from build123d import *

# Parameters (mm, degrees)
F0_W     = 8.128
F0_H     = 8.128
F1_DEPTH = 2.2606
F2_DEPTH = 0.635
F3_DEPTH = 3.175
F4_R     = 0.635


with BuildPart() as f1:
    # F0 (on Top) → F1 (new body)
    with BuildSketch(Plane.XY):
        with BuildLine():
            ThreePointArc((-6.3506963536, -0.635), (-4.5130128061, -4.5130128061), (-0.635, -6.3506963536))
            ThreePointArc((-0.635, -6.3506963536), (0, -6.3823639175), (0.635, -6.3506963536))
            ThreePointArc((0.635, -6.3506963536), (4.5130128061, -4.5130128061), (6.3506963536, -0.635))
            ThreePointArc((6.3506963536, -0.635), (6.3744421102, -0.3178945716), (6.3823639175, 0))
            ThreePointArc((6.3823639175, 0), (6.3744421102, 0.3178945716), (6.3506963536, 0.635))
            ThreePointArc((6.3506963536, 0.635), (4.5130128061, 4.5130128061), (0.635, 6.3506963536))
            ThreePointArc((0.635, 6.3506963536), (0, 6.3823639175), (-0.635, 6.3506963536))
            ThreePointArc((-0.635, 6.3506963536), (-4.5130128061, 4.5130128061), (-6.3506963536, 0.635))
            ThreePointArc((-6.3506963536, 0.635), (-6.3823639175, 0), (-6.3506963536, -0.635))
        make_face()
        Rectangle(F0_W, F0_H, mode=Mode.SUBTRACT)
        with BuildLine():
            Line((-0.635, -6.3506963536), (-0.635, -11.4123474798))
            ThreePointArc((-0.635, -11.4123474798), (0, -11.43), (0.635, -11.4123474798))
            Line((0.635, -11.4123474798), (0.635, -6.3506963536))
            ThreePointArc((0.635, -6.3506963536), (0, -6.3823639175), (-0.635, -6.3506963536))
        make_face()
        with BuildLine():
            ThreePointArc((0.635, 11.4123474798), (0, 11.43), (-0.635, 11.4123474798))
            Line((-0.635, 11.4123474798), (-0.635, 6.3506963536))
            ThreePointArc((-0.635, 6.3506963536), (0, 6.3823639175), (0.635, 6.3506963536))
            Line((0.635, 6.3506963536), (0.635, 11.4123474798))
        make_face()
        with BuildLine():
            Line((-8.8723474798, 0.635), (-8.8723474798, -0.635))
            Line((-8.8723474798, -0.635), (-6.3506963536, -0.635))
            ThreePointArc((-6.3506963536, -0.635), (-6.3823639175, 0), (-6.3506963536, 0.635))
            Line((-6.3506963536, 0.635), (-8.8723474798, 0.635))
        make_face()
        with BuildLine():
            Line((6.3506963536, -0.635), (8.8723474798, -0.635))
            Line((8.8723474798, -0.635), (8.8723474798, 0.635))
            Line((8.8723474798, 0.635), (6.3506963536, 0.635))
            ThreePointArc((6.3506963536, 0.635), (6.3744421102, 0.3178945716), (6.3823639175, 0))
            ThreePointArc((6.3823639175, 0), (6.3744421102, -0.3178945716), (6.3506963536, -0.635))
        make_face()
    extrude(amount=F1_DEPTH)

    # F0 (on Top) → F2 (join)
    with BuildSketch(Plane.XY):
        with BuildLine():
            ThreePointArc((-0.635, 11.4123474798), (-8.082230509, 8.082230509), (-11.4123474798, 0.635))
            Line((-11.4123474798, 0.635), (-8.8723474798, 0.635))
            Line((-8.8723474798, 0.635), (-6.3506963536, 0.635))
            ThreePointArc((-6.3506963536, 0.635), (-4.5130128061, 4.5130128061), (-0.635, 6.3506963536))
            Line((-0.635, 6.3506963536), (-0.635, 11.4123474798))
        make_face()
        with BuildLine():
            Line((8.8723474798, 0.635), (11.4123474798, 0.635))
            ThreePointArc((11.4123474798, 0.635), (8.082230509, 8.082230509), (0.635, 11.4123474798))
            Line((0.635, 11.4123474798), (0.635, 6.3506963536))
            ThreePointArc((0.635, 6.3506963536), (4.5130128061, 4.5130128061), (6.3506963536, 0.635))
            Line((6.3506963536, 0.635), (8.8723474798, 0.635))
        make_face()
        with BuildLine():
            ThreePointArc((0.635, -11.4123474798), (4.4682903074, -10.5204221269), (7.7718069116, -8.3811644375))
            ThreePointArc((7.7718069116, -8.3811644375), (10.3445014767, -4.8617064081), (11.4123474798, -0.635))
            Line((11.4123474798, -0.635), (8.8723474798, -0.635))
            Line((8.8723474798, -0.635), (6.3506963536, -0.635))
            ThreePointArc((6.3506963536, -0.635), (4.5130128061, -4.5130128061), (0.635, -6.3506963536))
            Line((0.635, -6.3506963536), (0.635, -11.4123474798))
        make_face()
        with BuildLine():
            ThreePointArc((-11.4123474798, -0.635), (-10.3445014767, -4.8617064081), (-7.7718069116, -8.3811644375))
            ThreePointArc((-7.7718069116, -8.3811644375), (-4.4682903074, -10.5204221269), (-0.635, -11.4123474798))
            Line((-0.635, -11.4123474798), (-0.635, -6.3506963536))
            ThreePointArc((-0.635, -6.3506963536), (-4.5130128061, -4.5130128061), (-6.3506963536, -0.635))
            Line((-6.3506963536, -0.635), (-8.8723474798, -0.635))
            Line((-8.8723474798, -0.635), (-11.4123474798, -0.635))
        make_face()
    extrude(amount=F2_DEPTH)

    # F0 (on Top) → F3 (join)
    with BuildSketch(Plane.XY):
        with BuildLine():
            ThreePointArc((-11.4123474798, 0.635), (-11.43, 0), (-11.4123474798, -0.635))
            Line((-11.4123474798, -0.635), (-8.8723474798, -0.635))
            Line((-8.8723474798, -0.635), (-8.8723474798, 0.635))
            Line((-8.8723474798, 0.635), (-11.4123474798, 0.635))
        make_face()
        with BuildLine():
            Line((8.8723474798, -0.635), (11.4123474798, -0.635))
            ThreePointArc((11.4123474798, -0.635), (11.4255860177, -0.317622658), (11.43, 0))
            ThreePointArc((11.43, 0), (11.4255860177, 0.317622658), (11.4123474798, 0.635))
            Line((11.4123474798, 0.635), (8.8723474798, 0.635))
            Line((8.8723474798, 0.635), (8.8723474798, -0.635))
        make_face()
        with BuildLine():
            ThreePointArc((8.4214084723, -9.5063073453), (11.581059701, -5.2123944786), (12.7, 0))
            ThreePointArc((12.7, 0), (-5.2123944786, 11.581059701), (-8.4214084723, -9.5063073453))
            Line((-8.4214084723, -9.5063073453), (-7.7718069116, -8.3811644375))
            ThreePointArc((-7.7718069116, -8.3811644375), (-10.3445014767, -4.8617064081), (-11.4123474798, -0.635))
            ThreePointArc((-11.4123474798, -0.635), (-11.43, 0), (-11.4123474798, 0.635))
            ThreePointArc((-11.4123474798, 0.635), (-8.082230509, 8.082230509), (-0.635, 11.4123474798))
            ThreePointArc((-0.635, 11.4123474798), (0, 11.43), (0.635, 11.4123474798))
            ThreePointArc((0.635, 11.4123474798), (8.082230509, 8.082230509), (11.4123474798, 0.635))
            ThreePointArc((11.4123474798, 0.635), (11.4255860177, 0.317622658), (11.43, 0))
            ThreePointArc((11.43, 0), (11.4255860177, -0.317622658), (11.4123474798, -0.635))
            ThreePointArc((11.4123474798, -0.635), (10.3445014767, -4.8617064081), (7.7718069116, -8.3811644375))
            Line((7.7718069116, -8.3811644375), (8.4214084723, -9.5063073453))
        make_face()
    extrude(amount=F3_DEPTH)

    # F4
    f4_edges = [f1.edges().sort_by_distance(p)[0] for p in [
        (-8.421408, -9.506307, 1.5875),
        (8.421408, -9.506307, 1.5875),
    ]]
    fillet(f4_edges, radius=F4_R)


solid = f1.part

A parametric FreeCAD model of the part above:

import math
import FreeCAD as App
import Part
import Sketcher

V = App.Vector
Q = App.Units.Quantity


def edges_at(feature, points):
    """Names of the edges that pass closest to the given points."""
    edges = feature.Shape.Edges
    near = lambda p: min(range(len(edges)), key=lambda i: edges[i].distToShape(Part.Vertex(*p))[0])
    return sorted({f"Edge{near(p) + 1}" for p in points})

doc = App.newDocument("Part")
params = doc.addObject("Spreadsheet::Sheet", "Params")
for row, (alias, value) in enumerate([
    ("sketch1_radius", "0.45 in"),
    ("sketch1_width", "0.32 in"),
    ("sketch1_height", "0.05 in"),
    ("pad1_length", "0.089 in"),
    ("sketch2_radius", "0.45 in"),
    ("pad2_length", "0.025 in"),
    ("sketch3_radius", "0.5 in"),
    ("sketch3_radius2", "0.45 in"),
    ("sketch3_width", "0.1 in"),
    ("sketch3_height", "0.05 in"),
    ("pad3_length", "0.125 in"),
    ("fillet_radius", "0.025 in"),
], start=1):
    params.set(f"A{row}", alias)
    params.set(f"B{row}", "=" + value)
    params.setAlias(f"B{row}", alias)

body = doc.addObject("PartDesign::Body", "Body")

sketch1 = body.newObject("Sketcher::SketchObject", "Sketch")
sketch1.AttachmentSupport = (doc.getObject("XY_Plane"), [""])
sketch1.MapMode = "FlatFace"
sketch1.addGeometry(Part.ArcOfCircle(Part.Circle(V(0, 0, 0), V(0, 0, 1), 6.4), math.radians(-174), math.radians(-96)), False)
sketch1.addGeometry(Part.LineSegment(V(-0.6, -6.4, 0), V(-0.6, -11.4, 0)), False)
sketch1.addGeometry(Part.ArcOfCircle(Part.Circle(V(0, 0, 0), V(0, 0, 1), 11.4), math.radians(-93.18), math.radians(-86.82)), False)
sketch1.addGeometry(Part.LineSegment(V(0.6, -11.4, 0), V(0.6, -6.4, 0)), False)
sketch1.addGeometry(Part.ArcOfCircle(Part.Circle(V(0, 0, 0), V(0, 0, 1), 6.4), math.radians(-84), math.radians(-6)), False)
sketch1.addGeometry(Part.LineSegment(V(6.4, -0.6, 0), V(8.9, -0.6, 0)), False)
sketch1.addGeometry(Part.LineSegment(V(8.9, -0.6, 0), V(8.9, 0.6, 0)), False)
sketch1.addGeometry(Part.LineSegment(V(8.9, 0.6, 0), V(6.4, 0.6, 0)), False)
sketch1.addGeometry(Part.ArcOfCircle(Part.Circle(V(0, 0, 0), V(0, 0, 1), 6.4), math.radians(6), math.radians(84)), False)
sketch1.addGeometry(Part.LineSegment(V(0.6, 6.4, 0), V(0.6, 11.4, 0)), False)
sketch1.addGeometry(Part.ArcOfCircle(Part.Circle(V(0, 0, 0), V(0, 0, 1), 11.4), math.radians(86.82), math.radians(93.18)), False)
sketch1.addGeometry(Part.LineSegment(V(-0.6, 11.4, 0), V(-0.6, 6.4, 0)), False)
sketch1.addGeometry(Part.ArcOfCircle(Part.Circle(V(0, 0, 0), V(0, 0, 1), 6.4), math.radians(96), math.radians(174)), False)
sketch1.addGeometry(Part.LineSegment(V(-6.4, 0.6, 0), V(-8.9, 0.6, 0)), False)
sketch1.addGeometry(Part.LineSegment(V(-8.9, 0.6, 0), V(-8.9, -0.6, 0)), False)
sketch1.addGeometry(Part.LineSegment(V(-8.9, -0.6, 0), V(-6.4, -0.6, 0)), False)
sketch1.addGeometry(Part.LineSegment(V(4.1, -4.1, 0), V(-4.1, -4.1, 0)), False)
sketch1.addGeometry(Part.LineSegment(V(-4.1, -4.1, 0), V(-4.1, 4.1, 0)), False)
sketch1.addGeometry(Part.LineSegment(V(-4.1, 4.1, 0), V(4.1, 4.1, 0)), False)
sketch1.addGeometry(Part.LineSegment(V(4.1, 4.1, 0), V(4.1, -4.1, 0)), False)
sketch1.addConstraint(Sketcher.Constraint("Coincident", 0, 2, 1, 1))
sketch1.addConstraint(Sketcher.Constraint("Coincident", 1, 2, 2, 1))
sketch1.addConstraint(Sketcher.Constraint("Coincident", 2, 2, 3, 1))
sketch1.addConstraint(Sketcher.Constraint("Coincident", 3, 2, 4, 1))
sketch1.addConstraint(Sketcher.Constraint("Coincident", 4, 2, 5, 1))
sketch1.addConstraint(Sketcher.Constraint("Coincident", 5, 2, 6, 1))
sketch1.addConstraint(Sketcher.Constraint("Coincident", 6, 2, 7, 1))
sketch1.addConstraint(Sketcher.Constraint("Coincident", 7, 2, 8, 1))
sketch1.addConstraint(Sketcher.Constraint("Coincident", 8, 2, 9, 1))
sketch1.addConstraint(Sketcher.Constraint("Coincident", 9, 2, 10, 1))
sketch1.addConstraint(Sketcher.Constraint("Coincident", 10, 2, 11, 1))
sketch1.addConstraint(Sketcher.Constraint("Coincident", 11, 2, 12, 1))
sketch1.addConstraint(Sketcher.Constraint("Coincident", 12, 2, 13, 1))
sketch1.addConstraint(Sketcher.Constraint("Coincident", 13, 2, 14, 1))
sketch1.addConstraint(Sketcher.Constraint("Coincident", 14, 2, 15, 1))
sketch1.addConstraint(Sketcher.Constraint("Coincident", 15, 2, 0, 1))
sketch1.addConstraint(Sketcher.Constraint("Coincident", 16, 2, 17, 1))
sketch1.addConstraint(Sketcher.Constraint("Coincident", 17, 2, 18, 1))
sketch1.addConstraint(Sketcher.Constraint("Coincident", 18, 2, 19, 1))
sketch1.addConstraint(Sketcher.Constraint("Coincident", 19, 2, 16, 1))
sketch1.addConstraint(Sketcher.Constraint("Vertical", 1))
sketch1.addConstraint(Sketcher.Constraint("Vertical", 3))
sketch1.addConstraint(Sketcher.Constraint("Horizontal", 5))
sketch1.addConstraint(Sketcher.Constraint("Vertical", 6))
sketch1.addConstraint(Sketcher.Constraint("Horizontal", 7))
sketch1.addConstraint(Sketcher.Constraint("Vertical", 9))
sketch1.addConstraint(Sketcher.Constraint("Vertical", 11))
sketch1.addConstraint(Sketcher.Constraint("Horizontal", 13))
sketch1.addConstraint(Sketcher.Constraint("Vertical", 14))
sketch1.addConstraint(Sketcher.Constraint("Horizontal", 15))
sketch1.addConstraint(Sketcher.Constraint("Horizontal", 16))
sketch1.addConstraint(Sketcher.Constraint("Vertical", 17))
sketch1.addConstraint(Sketcher.Constraint("Horizontal", 18))
sketch1.addConstraint(Sketcher.Constraint("Vertical", 19))
sketch1.addConstraint(Sketcher.Constraint("Coincident", 0, 3, -1, 1))
sketch1.addConstraint(Sketcher.Constraint("Coincident", 2, 3, -1, 1))
sketch1.addConstraint(Sketcher.Constraint("Coincident", 4, 3, -1, 1))
sketch1.addConstraint(Sketcher.Constraint("Coincident", 8, 3, -1, 1))
sketch1.addConstraint(Sketcher.Constraint("Coincident", 10, 3, -1, 1))
sketch1.addConstraint(Sketcher.Constraint("Coincident", 12, 3, -1, 1))
sketch1.addConstraint(Sketcher.Constraint("Equal", 0, 4))
sketch1.addConstraint(Sketcher.Constraint("Equal", 4, 8))
sketch1.addConstraint(Sketcher.Constraint("Equal", 2, 10))
sketch1.addConstraint(Sketcher.Constraint("Equal", 8, 12))
sketch1.addConstraint(Sketcher.Constraint("Symmetric", 5, 2, 13, 2, -1, 1))
sketch1.addConstraint(Sketcher.Constraint("Symmetric", 16, 2, 18, 2, -1, 1))
sketch1.addConstraint(Sketcher.Constraint("Horizontal", 1, 2, 2, 2))
sketch1.addConstraint(Sketcher.Constraint("Horizontal", 9, 2, 10, 2))
sketch1.addConstraint(Sketcher.Constraint("Horizontal", 7, 2, 12, 2))
sketch1.addConstraint(Sketcher.Constraint("Horizontal", 5, 2, 14, 2))
sketch1.addConstraint(Sketcher.Constraint("Vertical", 3, 2, 8, 2))
sketch1.addConstraint(Sketcher.Constraint("Equal", 18, 17))
sketch1.addConstraint(Sketcher.Constraint("Radius", 2, Q("0.45 in")))
sketch1.addConstraint(Sketcher.Constraint("DistanceX", 16, 2, 16, 1, Q("0.32 in")))
sketch1.addConstraint(Sketcher.Constraint("DistanceY", 6, 1, 6, 2, Q("0.05 in")))
sketch1.addConstraint(Sketcher.Constraint("DistanceX", 1, 2, 2, 2, Q("0.05 in")))
sketch1.addConstraint(Sketcher.Constraint("Radius", 0, Q("6.382364 mm")))
sketch1.addConstraint(Sketcher.Constraint("DistanceX", 5, 1, 5, 2, Q("2.521651 mm")))
sketch1.setExpression("Constraints[52]", "Params.sketch1_radius")
sketch1.setExpression("Constraints[53]", "Params.sketch1_width")
sketch1.setExpression("Constraints[54]", "Params.sketch1_height")
pad1 = body.newObject("PartDesign::Pad", "Pad")
pad1.Profile = sketch1
pad1.setExpression("Length", "Params.pad1_length")

sketch2 = body.newObject("Sketcher::SketchObject", "Sketch001")
sketch2.AttachmentSupport = (doc.getObject("XY_Plane"), [""])
sketch2.MapMode = "FlatFace"
sketch2.addGeometry(Part.ArcOfCircle(Part.Circle(V(0, 0, 0), V(0, 0, 1), 11), math.radians(93), math.radians(177)), False)
sketch2.addGeometry(Part.LineSegment(V(-11, 1, 0), V(-6, 1, 0)), False)
sketch2.addGeometry(Part.ArcOfCircle(Part.Circle(V(0, 0, 0), V(0, 0, 1), 6), math.radians(96), math.radians(174)), False)
sketch2.addGeometry(Part.LineSegment(V(-1, 6, 0), V(-1, 11, 0)), False)
sketch2.addGeometry(Part.ArcOfCircle(Part.Circle(V(0, 0, 0), V(0, 0, 1), 11), math.radians(3), math.radians(87)), False)
sketch2.addGeometry(Part.LineSegment(V(1, 11, 0), V(1, 6, 0)), False)
sketch2.addGeometry(Part.ArcOfCircle(Part.Circle(V(0, 0, 0), V(0, 0, 1), 6), math.radians(6), math.radians(84)), False)
sketch2.addGeometry(Part.LineSegment(V(6, 1, 0), V(11, 1, 0)), False)
sketch2.addGeometry(Part.ArcOfCircle(Part.Circle(V(0, 0, 0), V(0, 0, 1), 11), math.radians(-87), math.radians(-47)), False)
sketch2.addGeometry(Part.ArcOfCircle(Part.Circle(V(0, 0, 0), V(0, 0, 1), 11), math.radians(-47), math.radians(-3)), False)
sketch2.addGeometry(Part.LineSegment(V(11, -1, 0), V(6, -1, 0)), False)
sketch2.addGeometry(Part.ArcOfCircle(Part.Circle(V(0, 0, 0), V(0, 0, 1), 6), math.radians(-84), math.radians(-6)), False)
sketch2.addGeometry(Part.LineSegment(V(1, -6, 0), V(1, -11, 0)), False)
sketch2.addGeometry(Part.ArcOfCircle(Part.Circle(V(0, 0, 0), V(0, 0, 1), 11), math.radians(-177), math.radians(-133)), False)
sketch2.addGeometry(Part.ArcOfCircle(Part.Circle(V(0, 0, 0), V(0, 0, 1), 11), math.radians(-133), math.radians(-93)), False)
sketch2.addGeometry(Part.LineSegment(V(-1, -11, 0), V(-1, -6, 0)), False)
sketch2.addGeometry(Part.ArcOfCircle(Part.Circle(V(0, 0, 0), V(0, 0, 1), 6), math.radians(-174), math.radians(-96)), False)
sketch2.addGeometry(Part.LineSegment(V(-6, -1, 0), V(-11, -1, 0)), False)
sketch2.addConstraint(Sketcher.Constraint("Coincident", 0, 2, 1, 1))
sketch2.addConstraint(Sketcher.Constraint("Coincident", 1, 2, 2, 2))
sketch2.addConstraint(Sketcher.Constraint("Coincident", 2, 1, 3, 1))
sketch2.addConstraint(Sketcher.Constraint("Coincident", 3, 2, 0, 1))
sketch2.addConstraint(Sketcher.Constraint("Coincident", 4, 2, 5, 1))
sketch2.addConstraint(Sketcher.Constraint("Coincident", 5, 2, 6, 2))
sketch2.addConstraint(Sketcher.Constraint("Coincident", 6, 1, 7, 1))
sketch2.addConstraint(Sketcher.Constraint("Coincident", 7, 2, 4, 1))
sketch2.addConstraint(Sketcher.Constraint("Tangent", 8, 2, 9, 1))
sketch2.addConstraint(Sketcher.Constraint("Coincident", 9, 2, 10, 1))
sketch2.addConstraint(Sketcher.Constraint("Coincident", 10, 2, 11, 2))
sketch2.addConstraint(Sketcher.Constraint("Coincident", 11, 1, 12, 1))
sketch2.addConstraint(Sketcher.Constraint("Coincident", 12, 2, 8, 1))
sketch2.addConstraint(Sketcher.Constraint("Tangent", 13, 2, 14, 1))
sketch2.addConstraint(Sketcher.Constraint("Coincident", 14, 2, 15, 1))
sketch2.addConstraint(Sketcher.Constraint("Coincident", 15, 2, 16, 2))
sketch2.addConstraint(Sketcher.Constraint("Coincident", 16, 1, 17, 1))
sketch2.addConstraint(Sketcher.Constraint("Coincident", 17, 2, 13, 1))
sketch2.addConstraint(Sketcher.Constraint("Horizontal", 1))
sketch2.addConstraint(Sketcher.Constraint("Vertical", 3))
sketch2.addConstraint(Sketcher.Constraint("Vertical", 5))
sketch2.addConstraint(Sketcher.Constraint("Horizontal", 7))
sketch2.addConstraint(Sketcher.Constraint("Horizontal", 10))
sketch2.addConstraint(Sketcher.Constraint("Vertical", 12))
sketch2.addConstraint(Sketcher.Constraint("Vertical", 15))
sketch2.addConstraint(Sketcher.Constraint("Horizontal", 17))
sketch2.addConstraint(Sketcher.Constraint("Coincident", 0, 3, -1, 1))
sketch2.addConstraint(Sketcher.Constraint("Coincident", 2, 3, -1, 1))
sketch2.addConstraint(Sketcher.Constraint("Coincident", 4, 3, -1, 1))
sketch2.addConstraint(Sketcher.Constraint("Coincident", 6, 3, -1, 1))
sketch2.addConstraint(Sketcher.Constraint("Coincident", 8, 3, -1, 1))
sketch2.addConstraint(Sketcher.Constraint("Coincident", 11, 3, -1, 1))
sketch2.addConstraint(Sketcher.Constraint("Coincident", 13, 3, -1, 1))
sketch2.addConstraint(Sketcher.Constraint("Coincident", 16, 3, -1, 1))
sketch2.addConstraint(Sketcher.Constraint("Equal", 0, 4))
sketch2.addConstraint(Sketcher.Constraint("Equal", 2, 6))
sketch2.addConstraint(Sketcher.Constraint("Equal", 4, 8))
sketch2.addConstraint(Sketcher.Constraint("Equal", 8, 9))
sketch2.addConstraint(Sketcher.Constraint("Equal", 6, 11))
sketch2.addConstraint(Sketcher.Constraint("Equal", 9, 13))
sketch2.addConstraint(Sketcher.Constraint("Equal", 13, 14))
sketch2.addConstraint(Sketcher.Constraint("Equal", 11, 16))
sketch2.addConstraint(Sketcher.Constraint("Horizontal", 3, 2, 4, 2))
sketch2.addConstraint(Sketcher.Constraint("Horizontal", 1, 2, 6, 1))
sketch2.addConstraint(Sketcher.Constraint("Horizontal", 8, 2, 13, 2))
sketch2.addConstraint(Sketcher.Constraint("Horizontal", 12, 2, 14, 2))
sketch2.addConstraint(Sketcher.Constraint("Horizontal", 10, 2, 16, 1))
sketch2.addConstraint(Sketcher.Constraint("Vertical", 7, 2, 9, 2))
sketch2.addConstraint(Sketcher.Constraint("Vertical", 5, 2, 11, 1))
sketch2.addConstraint(Sketcher.Constraint("Equal", 17, 3))
sketch2.addConstraint(Sketcher.Constraint("Radius", 0, Q("0.45 in")))
sketch2.addConstraint(Sketcher.Constraint("DistanceX", 3, 2, 4, 2, Q("0.05 in")))
sketch2.addConstraint(Sketcher.Constraint("Radius", 2, Q("6.382364 mm")))
sketch2.addConstraint(Sketcher.Constraint("DistanceX", 6, 1, 8, 2, Q("1.421111 mm")))
sketch2.setExpression("Constraints[50]", "Params.sketch2_radius")
pad2 = body.newObject("PartDesign::Pad", "Pad001")
pad2.Profile = sketch2
pad2.setExpression("Length", "Params.pad2_length")

sketch3 = body.newObject("Sketcher::SketchObject", "Sketch002")
sketch3.AttachmentSupport = (doc.getObject("XY_Plane"), [""])
sketch3.MapMode = "FlatFace"
sketch3.addGeometry(Part.LineSegment(V(-11.4, -0.6, 0), V(-8.9, -0.6, 0)), False)
sketch3.addGeometry(Part.LineSegment(V(-8.9, -0.6, 0), V(-8.9, 0.6, 0)), False)
sketch3.addGeometry(Part.LineSegment(V(-8.9, 0.6, 0), V(-11.4, 0.6, 0)), False)
sketch3.addGeometry(Part.ArcOfCircle(Part.Circle(V(0, 0, 0), V(0, 0, 1), 11.4), math.radians(93), math.radians(177)), False)
sketch3.addGeometry(Part.ArcOfCircle(Part.Circle(V(0, 0, 0), V(0, 0, 1), 11.4), math.radians(86.82), math.radians(93.18)), False)
sketch3.addGeometry(Part.ArcOfCircle(Part.Circle(V(0, 0, 0), V(0, 0, 1), 11.4), math.radians(3), math.radians(87)), False)
sketch3.addGeometry(Part.LineSegment(V(11.4, 0.6, 0), V(8.9, 0.6, 0)), False)
sketch3.addGeometry(Part.LineSegment(V(8.9, 0.6, 0), V(8.9, -0.6, 0)), False)
sketch3.addGeometry(Part.LineSegment(V(8.9, -0.6, 0), V(11.4, -0.6, 0)), False)
sketch3.addGeometry(Part.ArcOfCircle(Part.Circle(V(0, 0, 0), V(0, 0, 1), 11.4), math.radians(-47), math.radians(-3)), False)
sketch3.addGeometry(Part.LineSegment(V(7.8, -8.4, 0), V(8.4, -9.5, 0)), False)
sketch3.addGeometry(Part.ArcOfCircle(Part.Circle(V(0, 0, 0), V(0, 0, 1), 12.7), math.radians(-48), math.radians(0)), False)
sketch3.addGeometry(Part.ArcOfCircle(Part.Circle(V(0, 0, 0), V(0, 0, 1), 12.7), math.radians(0), math.radians(228)), False)
sketch3.addGeometry(Part.LineSegment(V(-8.4, -9.5, 0), V(-7.8, -8.4, 0)), False)
sketch3.addGeometry(Part.ArcOfCircle(Part.Circle(V(0, 0, 0), V(0, 0, 1), 11.4), math.radians(-177), math.radians(-133)), False)
sketch3.addConstraint(Sketcher.Constraint("Coincident", 0, 2, 1, 1))
sketch3.addConstraint(Sketcher.Constraint("Coincident", 1, 2, 2, 1))
sketch3.addConstraint(Sketcher.Constraint("Coincident", 2, 2, 3, 2))
sketch3.addConstraint(Sketcher.Constraint("Tangent", 3, 1, 4, 2))
sketch3.addConstraint(Sketcher.Constraint("Tangent", 4, 1, 5, 2))
sketch3.addConstraint(Sketcher.Constraint("Coincident", 5, 1, 6, 1))
sketch3.addConstraint(Sketcher.Constraint("Coincident", 6, 2, 7, 1))
sketch3.addConstraint(Sketcher.Constraint("Coincident", 7, 2, 8, 1))
sketch3.addConstraint(Sketcher.Constraint("Coincident", 8, 2, 9, 2))
sketch3.addConstraint(Sketcher.Constraint("Coincident", 9, 1, 10, 1))
sketch3.addConstraint(Sketcher.Constraint("Coincident", 10, 2, 11, 1))
sketch3.addConstraint(Sketcher.Constraint("Tangent", 11, 2, 12, 1))
sketch3.addConstraint(Sketcher.Constraint("Coincident", 12, 2, 13, 1))
sketch3.addConstraint(Sketcher.Constraint("Coincident", 13, 2, 14, 2))
sketch3.addConstraint(Sketcher.Constraint("Coincident", 14, 1, 0, 1))
sketch3.addConstraint(Sketcher.Constraint("Horizontal", 0))
sketch3.addConstraint(Sketcher.Constraint("Vertical", 1))
sketch3.addConstraint(Sketcher.Constraint("Horizontal", 2))
sketch3.addConstraint(Sketcher.Constraint("Horizontal", 6))
sketch3.addConstraint(Sketcher.Constraint("Vertical", 7))
sketch3.addConstraint(Sketcher.Constraint("Horizontal", 8))
sketch3.addConstraint(Sketcher.Constraint("Coincident", 3, 3, -1, 1))
sketch3.addConstraint(Sketcher.Constraint("Coincident", 5, 3, -1, 1))
sketch3.addConstraint(Sketcher.Constraint("Coincident", 9, 3, -1, 1))
sketch3.addConstraint(Sketcher.Constraint("Coincident", 11, 3, -1, 1))
sketch3.addConstraint(Sketcher.Constraint("Coincident", 14, 3, -1, 1))
sketch3.addConstraint(Sketcher.Constraint("Equal", 5, 9))
sketch3.addConstraint(Sketcher.Constraint("Equal", 11, 12))
sketch3.addConstraint(Sketcher.Constraint("Equal", 9, 14))
sketch3.addConstraint(Sketcher.Constraint("Symmetric", 0, 2, 6, 2, -1, 1))
sketch3.addConstraint(Sketcher.Constraint("PointOnObject", 11, 2, -1))
sketch3.addConstraint(Sketcher.Constraint("Horizontal", 3, 1, 4, 1))
sketch3.addConstraint(Sketcher.Constraint("Horizontal", 2, 2, 5, 1))
sketch3.addConstraint(Sketcher.Constraint("Horizontal", 0, 2, 7, 2))
sketch3.addConstraint(Sketcher.Constraint("Horizontal", 10, 2, 12, 2))
sketch3.addConstraint(Sketcher.Constraint("Horizontal", 9, 1, 13, 2))
sketch3.addConstraint(Sketcher.Constraint("Radius", 11, Q("0.5 in")))
sketch3.addConstraint(Sketcher.Constraint("Radius", 3, Q("0.45 in")))
sketch3.addConstraint(Sketcher.Constraint("DistanceX", 0, 1, 0, 2, Q("0.1 in")))
sketch3.addConstraint(Sketcher.Constraint("Angle", 10, Q("-60 deg")))
sketch3.addConstraint(Sketcher.Constraint("DistanceY", 1, 1, 1, 2, Q("0.05 in")))
sketch3.addConstraint(Sketcher.Constraint("DistanceX", 3, 1, 4, 1, Q("0.05 in")))
sketch3.addConstraint(Sketcher.Constraint("DistanceX", -1, 1, 10, 2, Q("8.421408 mm")))
sketch3.setExpression("Constraints[36]", "Params.sketch3_radius")
sketch3.setExpression("Constraints[37]", "Params.sketch3_radius2")
sketch3.setExpression("Constraints[38]", "Params.sketch3_width")
sketch3.setExpression("Constraints[40]", "Params.sketch3_height")
pad3 = body.newObject("PartDesign::Pad", "Pad002")
pad3.Profile = sketch3
pad3.setExpression("Length", "Params.pad3_length")
doc.recompute()

fillet = body.newObject("PartDesign::Fillet", "Fillet")
fillet.Base = (pad3, edges_at(pad3, [(-8.421, -9.506, 1.587), (8.421, -9.506, 1.587)]))
fillet.setExpression("Radius", "Params.fillet_radius")

doc.recompute()
